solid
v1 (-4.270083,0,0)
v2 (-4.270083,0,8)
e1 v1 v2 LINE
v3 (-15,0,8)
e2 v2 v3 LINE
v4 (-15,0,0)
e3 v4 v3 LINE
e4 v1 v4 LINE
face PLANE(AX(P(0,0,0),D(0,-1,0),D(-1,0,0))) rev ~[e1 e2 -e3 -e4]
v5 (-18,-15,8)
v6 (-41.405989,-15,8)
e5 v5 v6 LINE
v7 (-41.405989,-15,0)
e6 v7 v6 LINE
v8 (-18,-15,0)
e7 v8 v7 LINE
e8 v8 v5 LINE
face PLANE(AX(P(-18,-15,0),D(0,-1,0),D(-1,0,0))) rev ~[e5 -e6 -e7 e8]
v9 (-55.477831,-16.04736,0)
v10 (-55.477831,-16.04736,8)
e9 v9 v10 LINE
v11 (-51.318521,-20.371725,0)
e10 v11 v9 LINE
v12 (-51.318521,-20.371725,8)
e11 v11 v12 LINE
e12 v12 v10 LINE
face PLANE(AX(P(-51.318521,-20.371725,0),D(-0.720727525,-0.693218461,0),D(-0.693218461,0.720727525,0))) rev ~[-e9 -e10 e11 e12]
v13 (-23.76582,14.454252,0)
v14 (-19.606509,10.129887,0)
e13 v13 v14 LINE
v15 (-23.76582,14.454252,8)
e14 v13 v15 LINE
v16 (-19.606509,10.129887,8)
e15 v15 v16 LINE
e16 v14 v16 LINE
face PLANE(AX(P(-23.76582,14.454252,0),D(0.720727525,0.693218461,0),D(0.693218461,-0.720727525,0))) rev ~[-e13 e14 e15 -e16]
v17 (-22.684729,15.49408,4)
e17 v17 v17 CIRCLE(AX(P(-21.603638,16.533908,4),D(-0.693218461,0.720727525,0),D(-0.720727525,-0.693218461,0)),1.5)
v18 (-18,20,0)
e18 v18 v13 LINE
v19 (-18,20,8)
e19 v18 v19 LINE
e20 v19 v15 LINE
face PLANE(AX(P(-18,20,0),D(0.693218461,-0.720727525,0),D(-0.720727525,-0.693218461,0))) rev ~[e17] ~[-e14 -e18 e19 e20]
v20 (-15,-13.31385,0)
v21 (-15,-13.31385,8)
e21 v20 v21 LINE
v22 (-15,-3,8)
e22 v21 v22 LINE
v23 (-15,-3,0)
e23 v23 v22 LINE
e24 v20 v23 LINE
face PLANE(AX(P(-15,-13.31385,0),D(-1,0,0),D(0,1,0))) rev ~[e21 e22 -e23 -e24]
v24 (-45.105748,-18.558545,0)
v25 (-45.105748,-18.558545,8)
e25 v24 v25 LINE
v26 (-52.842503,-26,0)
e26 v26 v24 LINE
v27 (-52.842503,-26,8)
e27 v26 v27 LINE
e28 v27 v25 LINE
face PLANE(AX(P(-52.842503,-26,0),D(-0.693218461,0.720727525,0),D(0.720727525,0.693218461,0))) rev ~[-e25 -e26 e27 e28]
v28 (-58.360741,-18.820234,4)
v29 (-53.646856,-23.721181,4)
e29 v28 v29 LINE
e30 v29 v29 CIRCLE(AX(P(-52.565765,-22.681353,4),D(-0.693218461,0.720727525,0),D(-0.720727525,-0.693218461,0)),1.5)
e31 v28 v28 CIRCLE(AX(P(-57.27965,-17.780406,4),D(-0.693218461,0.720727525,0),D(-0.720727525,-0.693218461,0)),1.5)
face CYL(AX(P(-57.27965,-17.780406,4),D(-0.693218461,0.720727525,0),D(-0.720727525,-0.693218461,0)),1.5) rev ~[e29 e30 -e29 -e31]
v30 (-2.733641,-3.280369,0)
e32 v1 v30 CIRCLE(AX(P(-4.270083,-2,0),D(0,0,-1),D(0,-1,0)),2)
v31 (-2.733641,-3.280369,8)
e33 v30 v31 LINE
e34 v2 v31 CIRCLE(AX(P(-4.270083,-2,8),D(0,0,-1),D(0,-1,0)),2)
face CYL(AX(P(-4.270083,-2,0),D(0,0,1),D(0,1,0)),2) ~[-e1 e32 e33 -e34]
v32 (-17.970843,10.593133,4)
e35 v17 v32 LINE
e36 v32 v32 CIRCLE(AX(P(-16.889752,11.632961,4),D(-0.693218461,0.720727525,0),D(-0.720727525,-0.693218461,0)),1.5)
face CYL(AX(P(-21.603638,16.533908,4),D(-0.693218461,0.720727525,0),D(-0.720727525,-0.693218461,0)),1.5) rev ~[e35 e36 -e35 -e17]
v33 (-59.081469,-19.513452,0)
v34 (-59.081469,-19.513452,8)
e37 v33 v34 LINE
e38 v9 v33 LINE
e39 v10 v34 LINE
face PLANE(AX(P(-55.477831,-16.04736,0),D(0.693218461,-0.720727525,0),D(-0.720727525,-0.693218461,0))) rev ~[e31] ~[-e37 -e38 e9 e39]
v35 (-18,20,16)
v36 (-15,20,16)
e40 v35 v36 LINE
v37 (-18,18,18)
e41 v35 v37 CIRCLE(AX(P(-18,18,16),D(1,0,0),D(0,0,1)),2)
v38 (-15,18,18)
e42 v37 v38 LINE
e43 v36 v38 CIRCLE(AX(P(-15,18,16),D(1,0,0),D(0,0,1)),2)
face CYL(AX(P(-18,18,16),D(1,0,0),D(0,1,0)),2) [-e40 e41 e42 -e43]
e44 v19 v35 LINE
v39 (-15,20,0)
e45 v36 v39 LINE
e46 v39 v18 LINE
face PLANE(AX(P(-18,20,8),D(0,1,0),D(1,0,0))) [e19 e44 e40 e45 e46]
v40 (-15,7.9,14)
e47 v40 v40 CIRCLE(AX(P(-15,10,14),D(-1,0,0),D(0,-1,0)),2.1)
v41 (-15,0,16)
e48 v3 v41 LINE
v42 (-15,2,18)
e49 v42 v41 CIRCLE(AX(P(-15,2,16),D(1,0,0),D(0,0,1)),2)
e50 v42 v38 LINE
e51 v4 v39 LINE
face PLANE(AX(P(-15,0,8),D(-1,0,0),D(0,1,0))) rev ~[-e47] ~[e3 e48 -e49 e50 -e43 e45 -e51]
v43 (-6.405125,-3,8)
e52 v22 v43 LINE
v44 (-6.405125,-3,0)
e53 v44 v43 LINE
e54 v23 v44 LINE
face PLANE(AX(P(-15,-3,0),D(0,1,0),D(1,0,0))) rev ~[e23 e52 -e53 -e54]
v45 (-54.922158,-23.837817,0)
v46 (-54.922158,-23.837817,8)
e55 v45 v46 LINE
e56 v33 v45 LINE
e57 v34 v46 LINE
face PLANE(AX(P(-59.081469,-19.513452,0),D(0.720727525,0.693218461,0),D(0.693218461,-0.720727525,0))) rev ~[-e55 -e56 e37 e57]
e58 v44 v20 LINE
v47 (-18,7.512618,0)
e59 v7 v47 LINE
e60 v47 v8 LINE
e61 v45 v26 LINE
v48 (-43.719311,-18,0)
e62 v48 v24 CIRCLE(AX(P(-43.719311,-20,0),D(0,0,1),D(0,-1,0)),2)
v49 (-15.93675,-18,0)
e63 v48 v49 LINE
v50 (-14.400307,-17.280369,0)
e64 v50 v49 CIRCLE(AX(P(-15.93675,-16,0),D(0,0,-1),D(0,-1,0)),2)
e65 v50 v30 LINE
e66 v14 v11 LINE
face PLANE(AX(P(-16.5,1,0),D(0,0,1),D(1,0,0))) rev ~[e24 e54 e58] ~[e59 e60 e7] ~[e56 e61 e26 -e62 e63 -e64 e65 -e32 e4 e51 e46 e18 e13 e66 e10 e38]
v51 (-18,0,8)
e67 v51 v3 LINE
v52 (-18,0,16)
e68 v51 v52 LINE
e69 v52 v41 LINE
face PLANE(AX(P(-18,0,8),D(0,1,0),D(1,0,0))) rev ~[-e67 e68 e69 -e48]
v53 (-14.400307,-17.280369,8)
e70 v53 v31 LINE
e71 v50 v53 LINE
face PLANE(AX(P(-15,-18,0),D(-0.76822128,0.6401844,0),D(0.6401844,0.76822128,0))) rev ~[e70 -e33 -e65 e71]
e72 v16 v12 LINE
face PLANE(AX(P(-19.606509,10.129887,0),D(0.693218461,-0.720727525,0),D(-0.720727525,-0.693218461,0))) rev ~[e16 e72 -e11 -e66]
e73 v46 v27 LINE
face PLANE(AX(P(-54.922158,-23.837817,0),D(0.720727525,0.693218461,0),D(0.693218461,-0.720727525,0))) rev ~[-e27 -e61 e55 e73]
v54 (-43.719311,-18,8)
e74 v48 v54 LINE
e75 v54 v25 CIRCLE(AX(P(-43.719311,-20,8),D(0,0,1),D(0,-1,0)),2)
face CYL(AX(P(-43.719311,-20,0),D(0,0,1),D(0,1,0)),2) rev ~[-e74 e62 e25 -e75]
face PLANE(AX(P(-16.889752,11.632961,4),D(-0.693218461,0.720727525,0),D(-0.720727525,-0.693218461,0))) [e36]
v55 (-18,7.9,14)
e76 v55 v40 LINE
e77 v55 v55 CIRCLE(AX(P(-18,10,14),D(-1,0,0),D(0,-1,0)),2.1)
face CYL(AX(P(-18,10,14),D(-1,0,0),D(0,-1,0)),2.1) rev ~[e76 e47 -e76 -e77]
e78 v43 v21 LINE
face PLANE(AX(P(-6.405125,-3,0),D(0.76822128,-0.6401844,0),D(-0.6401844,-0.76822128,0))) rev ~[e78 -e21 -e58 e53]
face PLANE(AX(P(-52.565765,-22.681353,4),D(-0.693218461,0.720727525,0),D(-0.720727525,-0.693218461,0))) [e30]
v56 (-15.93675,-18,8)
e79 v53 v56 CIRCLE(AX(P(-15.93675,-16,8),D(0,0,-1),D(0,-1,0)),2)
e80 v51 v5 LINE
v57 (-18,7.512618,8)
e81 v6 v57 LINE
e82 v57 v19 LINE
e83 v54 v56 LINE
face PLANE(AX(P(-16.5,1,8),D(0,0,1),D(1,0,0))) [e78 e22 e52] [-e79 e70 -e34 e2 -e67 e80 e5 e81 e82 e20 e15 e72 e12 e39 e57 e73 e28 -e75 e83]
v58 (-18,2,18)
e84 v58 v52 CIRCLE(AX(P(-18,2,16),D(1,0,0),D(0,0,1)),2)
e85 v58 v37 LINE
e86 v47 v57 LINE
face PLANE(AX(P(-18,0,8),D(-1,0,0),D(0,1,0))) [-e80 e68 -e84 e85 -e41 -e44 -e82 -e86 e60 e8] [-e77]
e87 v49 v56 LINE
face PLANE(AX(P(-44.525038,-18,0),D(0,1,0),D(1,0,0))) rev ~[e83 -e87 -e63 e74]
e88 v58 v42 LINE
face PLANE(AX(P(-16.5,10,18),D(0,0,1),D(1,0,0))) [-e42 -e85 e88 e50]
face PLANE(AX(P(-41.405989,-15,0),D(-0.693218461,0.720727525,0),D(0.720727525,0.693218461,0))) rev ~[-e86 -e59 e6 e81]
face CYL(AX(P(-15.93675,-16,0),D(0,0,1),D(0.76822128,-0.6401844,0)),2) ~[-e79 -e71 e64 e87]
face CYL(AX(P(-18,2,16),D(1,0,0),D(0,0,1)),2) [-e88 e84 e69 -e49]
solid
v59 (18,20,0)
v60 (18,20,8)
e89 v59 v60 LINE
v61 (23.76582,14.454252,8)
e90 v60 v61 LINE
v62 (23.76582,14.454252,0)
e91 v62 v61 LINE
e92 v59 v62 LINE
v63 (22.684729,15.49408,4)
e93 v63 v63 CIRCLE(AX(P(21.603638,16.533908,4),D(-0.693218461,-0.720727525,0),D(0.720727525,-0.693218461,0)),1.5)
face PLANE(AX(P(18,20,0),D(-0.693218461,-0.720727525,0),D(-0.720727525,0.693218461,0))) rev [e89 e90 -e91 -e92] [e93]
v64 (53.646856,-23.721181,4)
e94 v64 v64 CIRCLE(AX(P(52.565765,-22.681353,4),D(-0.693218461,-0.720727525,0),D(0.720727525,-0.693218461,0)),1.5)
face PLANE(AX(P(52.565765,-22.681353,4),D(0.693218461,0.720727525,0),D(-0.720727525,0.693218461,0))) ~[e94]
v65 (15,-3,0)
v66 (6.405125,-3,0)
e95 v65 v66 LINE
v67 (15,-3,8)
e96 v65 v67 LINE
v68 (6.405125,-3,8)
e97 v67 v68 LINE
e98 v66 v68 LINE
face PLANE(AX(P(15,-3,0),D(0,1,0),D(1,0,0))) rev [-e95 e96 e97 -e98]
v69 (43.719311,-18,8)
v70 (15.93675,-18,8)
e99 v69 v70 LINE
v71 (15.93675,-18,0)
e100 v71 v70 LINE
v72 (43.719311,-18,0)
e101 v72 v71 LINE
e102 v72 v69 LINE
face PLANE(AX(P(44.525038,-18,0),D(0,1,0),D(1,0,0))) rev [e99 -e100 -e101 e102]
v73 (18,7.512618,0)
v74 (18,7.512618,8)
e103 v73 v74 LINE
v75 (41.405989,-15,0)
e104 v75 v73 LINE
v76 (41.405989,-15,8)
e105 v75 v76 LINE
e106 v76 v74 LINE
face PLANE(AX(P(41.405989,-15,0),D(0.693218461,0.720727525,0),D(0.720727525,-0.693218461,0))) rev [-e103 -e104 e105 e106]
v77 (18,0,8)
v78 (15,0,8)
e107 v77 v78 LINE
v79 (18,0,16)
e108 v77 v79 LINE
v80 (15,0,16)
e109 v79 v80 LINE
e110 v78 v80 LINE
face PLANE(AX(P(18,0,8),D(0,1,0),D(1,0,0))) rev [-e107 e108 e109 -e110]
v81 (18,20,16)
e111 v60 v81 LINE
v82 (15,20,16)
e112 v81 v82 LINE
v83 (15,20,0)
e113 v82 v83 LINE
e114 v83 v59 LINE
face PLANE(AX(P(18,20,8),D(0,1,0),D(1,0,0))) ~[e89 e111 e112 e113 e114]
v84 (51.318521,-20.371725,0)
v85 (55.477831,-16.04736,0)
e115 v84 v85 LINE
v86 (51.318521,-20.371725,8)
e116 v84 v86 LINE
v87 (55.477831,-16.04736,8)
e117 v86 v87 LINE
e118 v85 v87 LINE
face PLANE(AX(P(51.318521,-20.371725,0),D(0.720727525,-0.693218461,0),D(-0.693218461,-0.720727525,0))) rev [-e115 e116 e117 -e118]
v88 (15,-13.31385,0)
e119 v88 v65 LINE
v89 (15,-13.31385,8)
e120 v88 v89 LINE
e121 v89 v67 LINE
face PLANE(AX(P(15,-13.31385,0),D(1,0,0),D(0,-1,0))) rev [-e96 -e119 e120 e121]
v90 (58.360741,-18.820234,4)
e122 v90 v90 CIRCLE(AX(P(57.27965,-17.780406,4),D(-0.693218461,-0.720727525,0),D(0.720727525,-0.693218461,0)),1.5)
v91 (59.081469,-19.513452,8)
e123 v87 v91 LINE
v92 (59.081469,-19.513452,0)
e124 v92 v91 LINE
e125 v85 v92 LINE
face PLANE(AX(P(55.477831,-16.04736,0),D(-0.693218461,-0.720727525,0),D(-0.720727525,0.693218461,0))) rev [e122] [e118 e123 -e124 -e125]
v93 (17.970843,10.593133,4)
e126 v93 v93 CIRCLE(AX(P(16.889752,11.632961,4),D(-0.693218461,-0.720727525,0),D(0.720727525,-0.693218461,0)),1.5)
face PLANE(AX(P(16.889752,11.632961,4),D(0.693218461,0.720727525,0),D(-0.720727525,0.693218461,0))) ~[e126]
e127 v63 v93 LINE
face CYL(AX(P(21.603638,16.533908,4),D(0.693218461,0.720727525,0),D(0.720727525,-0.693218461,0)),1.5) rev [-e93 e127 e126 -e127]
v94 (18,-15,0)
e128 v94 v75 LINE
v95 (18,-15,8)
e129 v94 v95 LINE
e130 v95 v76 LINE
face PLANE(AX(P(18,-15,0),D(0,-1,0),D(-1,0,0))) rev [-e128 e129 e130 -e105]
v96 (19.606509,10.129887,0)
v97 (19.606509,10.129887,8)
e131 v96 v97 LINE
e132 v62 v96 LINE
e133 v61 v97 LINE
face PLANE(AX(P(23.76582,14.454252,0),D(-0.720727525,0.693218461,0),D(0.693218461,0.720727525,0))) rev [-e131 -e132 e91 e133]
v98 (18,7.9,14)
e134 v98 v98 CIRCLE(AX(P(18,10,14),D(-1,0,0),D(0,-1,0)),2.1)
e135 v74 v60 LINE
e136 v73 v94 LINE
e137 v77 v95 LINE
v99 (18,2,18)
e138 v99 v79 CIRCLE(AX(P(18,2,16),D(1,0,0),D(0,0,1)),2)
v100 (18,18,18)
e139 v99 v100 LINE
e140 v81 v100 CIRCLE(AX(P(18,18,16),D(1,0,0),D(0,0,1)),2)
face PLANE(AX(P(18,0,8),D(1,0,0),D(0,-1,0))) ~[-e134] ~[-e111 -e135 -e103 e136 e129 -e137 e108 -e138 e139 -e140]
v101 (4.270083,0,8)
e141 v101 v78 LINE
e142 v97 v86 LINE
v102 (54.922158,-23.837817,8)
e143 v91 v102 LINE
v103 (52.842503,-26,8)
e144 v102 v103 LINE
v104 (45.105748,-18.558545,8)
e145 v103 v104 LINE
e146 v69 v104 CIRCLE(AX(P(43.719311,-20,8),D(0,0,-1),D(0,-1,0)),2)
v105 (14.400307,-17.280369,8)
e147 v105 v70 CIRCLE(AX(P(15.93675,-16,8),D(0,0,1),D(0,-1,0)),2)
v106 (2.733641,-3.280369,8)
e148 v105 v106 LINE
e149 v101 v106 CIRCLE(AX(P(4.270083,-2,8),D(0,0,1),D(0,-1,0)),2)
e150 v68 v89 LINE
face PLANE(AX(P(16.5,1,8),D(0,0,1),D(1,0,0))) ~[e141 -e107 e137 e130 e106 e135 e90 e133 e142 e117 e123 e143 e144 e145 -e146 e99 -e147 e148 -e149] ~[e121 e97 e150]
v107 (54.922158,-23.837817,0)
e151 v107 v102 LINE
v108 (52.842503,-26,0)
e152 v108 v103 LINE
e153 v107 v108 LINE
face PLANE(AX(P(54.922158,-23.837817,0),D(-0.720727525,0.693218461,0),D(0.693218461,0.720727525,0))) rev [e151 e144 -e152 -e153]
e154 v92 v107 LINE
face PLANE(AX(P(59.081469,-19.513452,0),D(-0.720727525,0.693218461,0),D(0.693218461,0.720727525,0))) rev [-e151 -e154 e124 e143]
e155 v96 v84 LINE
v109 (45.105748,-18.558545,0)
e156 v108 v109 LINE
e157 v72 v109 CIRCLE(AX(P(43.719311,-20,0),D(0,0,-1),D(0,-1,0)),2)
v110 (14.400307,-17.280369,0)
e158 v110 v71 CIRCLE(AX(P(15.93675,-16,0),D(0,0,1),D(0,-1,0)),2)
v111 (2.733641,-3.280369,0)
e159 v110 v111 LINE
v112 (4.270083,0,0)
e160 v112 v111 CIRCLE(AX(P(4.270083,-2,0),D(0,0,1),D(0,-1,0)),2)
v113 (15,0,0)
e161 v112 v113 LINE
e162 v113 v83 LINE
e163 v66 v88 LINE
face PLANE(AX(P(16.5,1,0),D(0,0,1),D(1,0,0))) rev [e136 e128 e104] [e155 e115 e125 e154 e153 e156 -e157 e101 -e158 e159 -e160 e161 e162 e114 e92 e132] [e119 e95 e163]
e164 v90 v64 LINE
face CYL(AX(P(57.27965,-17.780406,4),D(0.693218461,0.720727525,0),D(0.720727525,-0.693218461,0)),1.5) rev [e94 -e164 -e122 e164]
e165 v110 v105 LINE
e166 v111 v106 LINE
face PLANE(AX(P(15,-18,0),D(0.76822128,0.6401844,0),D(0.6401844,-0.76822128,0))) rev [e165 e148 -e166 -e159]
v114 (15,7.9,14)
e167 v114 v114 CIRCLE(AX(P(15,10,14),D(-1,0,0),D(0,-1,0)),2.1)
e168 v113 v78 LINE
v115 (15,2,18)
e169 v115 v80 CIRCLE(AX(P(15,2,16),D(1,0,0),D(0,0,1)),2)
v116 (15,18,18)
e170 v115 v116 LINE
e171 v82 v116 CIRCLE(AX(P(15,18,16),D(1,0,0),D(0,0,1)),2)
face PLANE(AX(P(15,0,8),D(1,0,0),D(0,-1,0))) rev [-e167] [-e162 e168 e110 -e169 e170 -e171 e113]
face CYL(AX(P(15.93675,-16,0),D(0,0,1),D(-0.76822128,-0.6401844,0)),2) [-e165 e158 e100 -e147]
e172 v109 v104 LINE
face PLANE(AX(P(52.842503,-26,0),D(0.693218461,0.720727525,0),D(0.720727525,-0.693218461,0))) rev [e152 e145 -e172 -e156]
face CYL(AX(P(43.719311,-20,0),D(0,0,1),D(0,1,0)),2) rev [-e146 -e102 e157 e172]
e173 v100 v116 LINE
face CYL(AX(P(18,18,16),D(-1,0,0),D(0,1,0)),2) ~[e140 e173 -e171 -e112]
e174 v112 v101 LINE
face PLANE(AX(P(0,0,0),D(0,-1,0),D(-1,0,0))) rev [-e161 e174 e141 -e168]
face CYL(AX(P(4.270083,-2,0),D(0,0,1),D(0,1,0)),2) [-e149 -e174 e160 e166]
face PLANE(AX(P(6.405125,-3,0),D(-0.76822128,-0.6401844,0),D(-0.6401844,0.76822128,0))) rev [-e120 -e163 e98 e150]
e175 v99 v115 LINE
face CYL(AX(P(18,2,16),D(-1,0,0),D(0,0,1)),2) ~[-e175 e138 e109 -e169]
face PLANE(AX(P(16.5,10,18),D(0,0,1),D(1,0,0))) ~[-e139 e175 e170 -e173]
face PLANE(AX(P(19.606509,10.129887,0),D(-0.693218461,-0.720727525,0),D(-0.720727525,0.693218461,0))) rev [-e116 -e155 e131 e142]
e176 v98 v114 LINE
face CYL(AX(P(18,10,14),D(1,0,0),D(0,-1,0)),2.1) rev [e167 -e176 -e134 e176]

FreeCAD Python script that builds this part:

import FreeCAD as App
import Part
import Sketcher
from FreeCAD import Vector


def edges_at(feature, points):
    """Names of the edges that pass closest to the given points."""
    edges = feature.Shape.Edges
    near = lambda p: min(range(len(edges)), key=lambda i: edges[i].distToShape(Part.Vertex(*p))[0])
    return sorted({f"Edge{near(p) + 1}" for p in points})


def add_polygon(sketch, points):
    """Adds a closed chain of lines whose ends are joined by coincident constraints."""
    first, n = sketch.GeometryCount, len(points)
    for a, b in zip(points, points[1:] + points[:1]):
        sketch.addGeometry(Part.LineSegment(App.Vector(*a, 0), App.Vector(*b, 0)), False)
    for i in range(n):
        sketch.addConstraint(Sketcher.Constraint("Coincident", first + i, 2, first + (i + 1) % n, 1))

doc = App.newDocument("Part")
body = doc.addObject("PartDesign::Body", "Body")

# Sketch on XY plane
sketch1 = doc.addObject("Sketcher::SketchObject", "Sketch")
body.addObject(sketch1)
sketch1.AttachmentSupport = (doc.XY_Plane, [""])
sketch1.MapMode = "FlatFace"
add_polygon(sketch1, [(-15, 20), (-18, 20), (-23.8, 14.5), (-19.6, 10.1), (-51.3, -20.4), (-55.5, -16), (-59.1, -19.5), (-54.9, -23.8), (-52.8, -26), (-44.5, -18), (-15, -18), (0, 0), (-15, 0)])  # lines 0-12
add_polygon(sketch1, [(-41.4, -15), (-18, 7.5), (-18, -15)])  # lines 13-15
add_polygon(sketch1, [(-15, -13.3), (-15, -3), (-6.4, -3)])  # lines 16-18
sketch1.addConstraint(Sketcher.Constraint("Horizontal", 0))
sketch1.addConstraint(Sketcher.Constraint("Horizontal", 9))
sketch1.addConstraint(Sketcher.Constraint("Horizontal", 11))
sketch1.addConstraint(Sketcher.Constraint("Vertical", 12))
sketch1.addConstraint(Sketcher.Constraint("Vertical", 14))
sketch1.addConstraint(Sketcher.Constraint("Horizontal", 15))
sketch1.addConstraint(Sketcher.Constraint("Vertical", 16))
sketch1.addConstraint(Sketcher.Constraint("Horizontal", 17))
sketch1.addConstraint(Sketcher.Constraint("Coincident", 10, 2, -1, 1))
sketch1.addConstraint(Sketcher.Constraint("Perpendicular", 1, 2))
sketch1.addConstraint(Sketcher.Constraint("Perpendicular", 2, 3))
sketch1.addConstraint(Sketcher.Constraint("Perpendicular", 3, 4))
sketch1.addConstraint(Sketcher.Constraint("Perpendicular", 4, 5))
sketch1.addConstraint(Sketcher.Constraint("Perpendicular", 5, 6))
sketch1.addConstraint(Sketcher.Constraint("Parallel", 6, 7))
sketch1.addConstraint(Sketcher.Constraint("Perpendicular", 7, 8))
sketch1.addConstraint(Sketcher.Constraint("Parallel", 8, 13))
sketch1.addConstraint(Sketcher.Constraint("Parallel", 10, 18))
sketch1.addConstraint(Sketcher.Constraint("Vertical", 9, 2, 11, 2))
sketch1.addConstraint(Sketcher.Constraint("Vertical", 0, 2, 13, 2))
sketch1.addConstraint(Sketcher.Constraint("Vertical", 12, 2, 16, 2))
sketch1.addConstraint(Sketcher.Constraint("Equal", 2, 4))
sketch1.addConstraint(Sketcher.Constraint("Equal", 4, 6))
sketch1.addConstraint(Sketcher.Constraint("DistanceX", 0, 2, 0, 1, 3.0))
sketch1.addConstraint(Sketcher.Constraint("DistanceX", 11, 2, 11, 1, 15.0))
sketch1.addConstraint(Sketcher.Constraint("DistanceY", 12, 1, 12, 2, 20.0))
sketch1.addConstraint(Sketcher.Constraint("Distance", 1, 8.0))
sketch1.addConstraint(Sketcher.Constraint("Distance", 2, 6.0))
sketch1.addConstraint(Sketcher.Constraint("Distance", 3, 44.0))
sketch1.addConstraint(Sketcher.Constraint("Distance", 5, 5.0))
sketch1.addConstraint(Sketcher.Constraint("Distance", 7, 3.0))
sketch1.addConstraint(Sketcher.Constraint("DistanceY", 7, 2, -1, 1, 26.0))
sketch1.addConstraint(Sketcher.Constraint("DistanceY", 8, 2, -1, 1, 18.0))
sketch1.addConstraint(Sketcher.Constraint("DistanceY", 14, 2, -1, 1, 15.0))
sketch1.addConstraint(Sketcher.Constraint("DistanceY", 16, 2, -1, 1, 3.0))
sketch1.addConstraint(Sketcher.Constraint("DistanceX", 15, 2, 15, 1, 23.405989))
sketch1.addConstraint(Sketcher.Constraint("DistanceY", 16, 1, 16, 2, 10.31385))
pad1 = doc.addObject("PartDesign::Pad", "Pad")
body.addObject(pad1)
pad1.Profile = sketch1
pad1.Length = 8

# Sketch on an angled plane
sketch2 = doc.addObject("Sketcher::SketchObject", "Sketch001")
body.addObject(sketch2)
sketch2.Placement = App.Placement(Vector(-18.642366, 19.382153, 0), App.Rotation(Vector(-0.720727525, -0.693218461, 0), Vector(0, 0, 1), Vector(-0.693218461, 0.720727525, 0), "ZXY"))
sketch2.addGeometry(Part.Circle(Vector(53.6, 4, 0), Vector(0, 0, 1), 1.5), False)
sketch2.addGeometry(Part.Circle(Vector(4.1, 4, 0), Vector(0, 0, 1), 1.5), False)
sketch2.addConstraint(Sketcher.Constraint("Equal", 0, 1))
sketch2.addConstraint(Sketcher.Constraint("Horizontal", 0, 3, 1, 3))
sketch2.addConstraint(Sketcher.Constraint("Diameter", 0, 3.0))
sketch2.addConstraint(Sketcher.Constraint("DistanceY", -1, 1, 0, 3, 4.0))
sketch2.addConstraint(Sketcher.Constraint("DistanceX", 1, 3, 0, 3, 49.5))
sketch2.addConstraint(Sketcher.Constraint("DistanceX", -1, 1, 0, 3, 53.608726))
pocket1 = doc.addObject("PartDesign::Pocket", "Pocket")
body.addObject(pocket1)
pocket1.Profile = sketch2
pocket1.Length = 6.8

# Sketch on XY plane
sketch3 = doc.addObject("Sketcher::SketchObject", "Sketch002")
body.addObject(sketch3)
sketch3.AttachmentSupport = (doc.XY_Plane, [""])
sketch3.MapMode = "FlatFace"
sketch3.AttachmentOffset = App.Placement(Vector(0, 0, 8), App.Rotation())
add_polygon(sketch3, [(-18, 20), (-18, 0), (-15, 0), (-15, 20)])  # lines 0-3
sketch3.addConstraint(Sketcher.Constraint("Vertical", 0))
sketch3.addConstraint(Sketcher.Constraint("Horizontal", 1))
sketch3.addConstraint(Sketcher.Constraint("Vertical", 2))
sketch3.addConstraint(Sketcher.Constraint("Horizontal", 3))
sketch3.addConstraint(Sketcher.Constraint("PointOnObject", 0, 2, -1))
sketch3.addConstraint(Sketcher.Constraint("DistanceX", 1, 1, 1, 2, 3.0))
sketch3.addConstraint(Sketcher.Constraint("DistanceY", 0, 2, 0, 1, 20.0))
sketch3.addConstraint(Sketcher.Constraint("DistanceX", 0, 2, -1, 1, 18.0))
pad2 = doc.addObject("PartDesign::Pad", "Pad001")
body.addObject(pad2)
pad2.Profile = sketch3
pad2.Length = 10
doc.recompute()

fillet = doc.addObject("PartDesign::Fillet", "Fillet")
body.addObject(fillet)
fillet.Base = (pad2, edges_at(pad2, [
    (0, 0, 4),
    (-15, -18, 4),
    (-44.525, -18, 4),
    (-16.5, 0, 18),
    (-16.5, 20, 18),
]))
fillet.Radius = 2

# Sketch on YZ plane
sketch4 = doc.addObject("Sketcher::SketchObject", "Sketch003")
body.addObject(sketch4)
sketch4.AttachmentSupport = (doc.YZ_Plane, [""])
sketch4.MapMode = "FlatFace"
sketch4.AttachmentOffset = App.Placement(Vector(0, 0, -18), App.Rotation())
sketch4.addGeometry(Part.Circle(Vector(10, 14, 0), Vector(0, 0, 1), 2.1), False)
sketch4.addConstraint(Sketcher.Constraint("Diameter", 0, 4.2))
sketch4.addConstraint(Sketcher.Constraint("DistanceX", -1, 1, 0, 3, 10.0))
sketch4.addConstraint(Sketcher.Constraint("DistanceY", -1, 1, 0, 3, 14.0))
pocket2 = doc.addObject("PartDesign::Pocket", "Pocket001")
body.addObject(pocket2)
pocket2.Profile = sketch4
pocket2.Type = "ThroughAll"
pocket2.Reversed = True
body2 = doc.addObject("PartDesign::Body", "Body001")
doc.recompute()

mirroring = doc.addObject("Part::Mirroring", "Mirroring")
mirroring.Source = body
mirroring.Base = Vector(0, 0, 0)
mirroring.Normal = Vector(1, 0, 0)
body2.BaseFeature = mirroring
doc.recompute()
mirroring.Visibility = False

doc.recompute()
